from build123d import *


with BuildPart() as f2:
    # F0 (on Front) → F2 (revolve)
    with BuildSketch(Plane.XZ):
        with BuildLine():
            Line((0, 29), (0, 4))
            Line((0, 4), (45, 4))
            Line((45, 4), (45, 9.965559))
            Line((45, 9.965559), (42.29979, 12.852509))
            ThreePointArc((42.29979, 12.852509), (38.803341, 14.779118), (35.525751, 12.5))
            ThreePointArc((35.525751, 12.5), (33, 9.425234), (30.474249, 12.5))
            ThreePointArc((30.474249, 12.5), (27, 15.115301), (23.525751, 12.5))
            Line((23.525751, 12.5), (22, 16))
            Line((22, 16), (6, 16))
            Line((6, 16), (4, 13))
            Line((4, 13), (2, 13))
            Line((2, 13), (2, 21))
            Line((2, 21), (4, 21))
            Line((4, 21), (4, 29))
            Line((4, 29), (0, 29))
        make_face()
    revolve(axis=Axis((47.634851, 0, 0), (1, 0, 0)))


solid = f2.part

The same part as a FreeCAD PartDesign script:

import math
import FreeCAD as App
import Part
import Sketcher

doc = App.newDocument("Part")
body = doc.addObject("PartDesign::Body", "Body")

# Sketch on XZ plane
sketch1 = body.newObject("Sketcher::SketchObject", "Sketch")
sketch1.AttachmentSupport = (doc.getObject("XZ_Plane"), [""])
sketch1.MapMode = "FlatFace"
sketch1.addGeometry([
    Part.LineSegment(App.Vector(0, 29, 0), App.Vector(0, 4, 0)),  # 0
    Part.LineSegment(App.Vector(0, 4, 0), App.Vector(45, 4, 0)),  # 1
    Part.LineSegment(App.Vector(45, 4, 0), App.Vector(45, 10, 0)),  # 2
    Part.LineSegment(App.Vector(45, 10, 0), App.Vector(42.3, 12.9, 0)),  # 3
    Part.ArcOfCircle(Part.Circle(App.Vector(39, 11, 0), App.Vector(0, 0, 1), 3.8), math.radians(29), math.radians(157)),  # 4
    Part.ArcOfCircle(Part.Circle(App.Vector(33, 12, 0), App.Vector(0, 0, 1), 2.6), math.radians(169), math.radians(371)),  # 5
    Part.ArcOfCircle(Part.Circle(App.Vector(27, 11.5, 0), App.Vector(0, 0, 1), 3.6), math.radians(16), math.radians(164)),  # 6
    Part.LineSegment(App.Vector(23.5, 12.5, 0), App.Vector(22, 16, 0)),  # 7
    Part.LineSegment(App.Vector(22, 16, 0), App.Vector(6, 16, 0)),  # 8
    Part.LineSegment(App.Vector(6, 16, 0), App.Vector(4, 13, 0)),  # 9
    Part.LineSegment(App.Vector(4, 13, 0), App.Vector(2, 13, 0)),  # 10
    Part.LineSegment(App.Vector(2, 13, 0), App.Vector(2, 21, 0)),  # 11
    Part.LineSegment(App.Vector(2, 21, 0), App.Vector(4, 21, 0)),  # 12
    Part.LineSegment(App.Vector(4, 21, 0), App.Vector(4, 29, 0)),  # 13
    Part.LineSegment(App.Vector(4, 29, 0), App.Vector(0, 29, 0)),  # 14
], False)
sketch1.addConstraint([
    Sketcher.Constraint("Coincident", 0, 2, 1, 1),
    Sketcher.Constraint("Coincident", 1, 2, 2, 1),
    Sketcher.Constraint("Coincident", 2, 2, 3, 1),
    Sketcher.Constraint("Coincident", 3, 2, 4, 1),
    Sketcher.Constraint("Coincident", 4, 2, 5, 2),
    Sketcher.Constraint("Coincident", 5, 1, 6, 1),
    Sketcher.Constraint("Coincident", 6, 2, 7, 1),
    Sketcher.Constraint("Coincident", 7, 2, 8, 1),
    Sketcher.Constraint("Coincident", 8, 2, 9, 1),
    Sketcher.Constraint("Coincident", 9, 2, 10, 1),
    Sketcher.Constraint("Coincident", 10, 2, 11, 1),
    Sketcher.Constraint("Coincident", 11, 2, 12, 1),
    Sketcher.Constraint("Coincident", 12, 2, 13, 1),
    Sketcher.Constraint("Coincident", 13, 2, 14, 1),
    Sketcher.Constraint("Coincident", 14, 2, 0, 1),
    Sketcher.Constraint("Vertical", 0),
    Sketcher.Constraint("Horizontal", 1),
    Sketcher.Constraint("Vertical", 2),
    Sketcher.Constraint("Horizontal", 8),
    Sketcher.Constraint("Horizontal", 10),
    Sketcher.Constraint("Vertical", 11),
    Sketcher.Constraint("Horizontal", 12),
    Sketcher.Constraint("Vertical", 13),
    Sketcher.Constraint("Horizontal", 14),
    Sketcher.Constraint("PointOnObject", 0, 2, -2),
    Sketcher.Constraint("Horizontal", 4, 2, 5, 1),
    Sketcher.Constraint("Horizontal", 5, 1, 6, 2),
    Sketcher.Constraint("Vertical", 9, 2, 12, 2),
    Sketcher.Constraint("Equal", 11, 13),
    Sketcher.Constraint("DistanceX", 1, 1, 1, 2, 45.0),
    Sketcher.Constraint("DistanceX", 8, 2, 8, 1, 16.0),
    Sketcher.Constraint("DistanceX", 10, 2, 10, 1, 2.0),
    Sketcher.Constraint("DistanceX", 14, 2, 14, 1, 4.0),
    Sketcher.Constraint("DistanceY", 0, 2, 0, 1, 25.0),
    Sketcher.Constraint("DistanceY", 11, 1, 11, 2, 8.0),
    Sketcher.Constraint("DistanceX", -1, 1, 4, 3, 39.0),
    Sketcher.Constraint("DistanceY", -1, 1, 4, 3, 11.000001),
    Sketcher.Constraint("DistanceX", -1, 1, 5, 3, 33.0),
    Sketcher.Constraint("DistanceY", -1, 1, 5, 3, 12.0),
    Sketcher.Constraint("DistanceX", -1, 1, 6, 3, 27.0),
    Sketcher.Constraint("DistanceY", -1, 1, 0, 2, 4.0),
    Sketcher.Constraint("DistanceX", -1, 1, 7, 2, 22.0),
    Sketcher.Constraint("DistanceY", -1, 1, 7, 2, 16.0),
    Sketcher.Constraint("DistanceY", 6, 3, 4, 2, 1.000001),
    Sketcher.Constraint("DistanceY", -1, 1, 6, 3, 11.499999),
    Sketcher.Constraint("Radius", 6, 3.615302),
    Sketcher.Constraint("DistanceY", 2, 1, 2, 2, 5.965559),
    Sketcher.Constraint("DistanceX", -1, 1, 3, 2, 42.29979),
])
revolution = body.newObject("PartDesign::Revolution", "Revolution")
revolution.Profile = sketch1
revolution.ReferenceAxis = (sketch1, ["H_Axis"])
revolution.Angle = 360

doc.recompute()
